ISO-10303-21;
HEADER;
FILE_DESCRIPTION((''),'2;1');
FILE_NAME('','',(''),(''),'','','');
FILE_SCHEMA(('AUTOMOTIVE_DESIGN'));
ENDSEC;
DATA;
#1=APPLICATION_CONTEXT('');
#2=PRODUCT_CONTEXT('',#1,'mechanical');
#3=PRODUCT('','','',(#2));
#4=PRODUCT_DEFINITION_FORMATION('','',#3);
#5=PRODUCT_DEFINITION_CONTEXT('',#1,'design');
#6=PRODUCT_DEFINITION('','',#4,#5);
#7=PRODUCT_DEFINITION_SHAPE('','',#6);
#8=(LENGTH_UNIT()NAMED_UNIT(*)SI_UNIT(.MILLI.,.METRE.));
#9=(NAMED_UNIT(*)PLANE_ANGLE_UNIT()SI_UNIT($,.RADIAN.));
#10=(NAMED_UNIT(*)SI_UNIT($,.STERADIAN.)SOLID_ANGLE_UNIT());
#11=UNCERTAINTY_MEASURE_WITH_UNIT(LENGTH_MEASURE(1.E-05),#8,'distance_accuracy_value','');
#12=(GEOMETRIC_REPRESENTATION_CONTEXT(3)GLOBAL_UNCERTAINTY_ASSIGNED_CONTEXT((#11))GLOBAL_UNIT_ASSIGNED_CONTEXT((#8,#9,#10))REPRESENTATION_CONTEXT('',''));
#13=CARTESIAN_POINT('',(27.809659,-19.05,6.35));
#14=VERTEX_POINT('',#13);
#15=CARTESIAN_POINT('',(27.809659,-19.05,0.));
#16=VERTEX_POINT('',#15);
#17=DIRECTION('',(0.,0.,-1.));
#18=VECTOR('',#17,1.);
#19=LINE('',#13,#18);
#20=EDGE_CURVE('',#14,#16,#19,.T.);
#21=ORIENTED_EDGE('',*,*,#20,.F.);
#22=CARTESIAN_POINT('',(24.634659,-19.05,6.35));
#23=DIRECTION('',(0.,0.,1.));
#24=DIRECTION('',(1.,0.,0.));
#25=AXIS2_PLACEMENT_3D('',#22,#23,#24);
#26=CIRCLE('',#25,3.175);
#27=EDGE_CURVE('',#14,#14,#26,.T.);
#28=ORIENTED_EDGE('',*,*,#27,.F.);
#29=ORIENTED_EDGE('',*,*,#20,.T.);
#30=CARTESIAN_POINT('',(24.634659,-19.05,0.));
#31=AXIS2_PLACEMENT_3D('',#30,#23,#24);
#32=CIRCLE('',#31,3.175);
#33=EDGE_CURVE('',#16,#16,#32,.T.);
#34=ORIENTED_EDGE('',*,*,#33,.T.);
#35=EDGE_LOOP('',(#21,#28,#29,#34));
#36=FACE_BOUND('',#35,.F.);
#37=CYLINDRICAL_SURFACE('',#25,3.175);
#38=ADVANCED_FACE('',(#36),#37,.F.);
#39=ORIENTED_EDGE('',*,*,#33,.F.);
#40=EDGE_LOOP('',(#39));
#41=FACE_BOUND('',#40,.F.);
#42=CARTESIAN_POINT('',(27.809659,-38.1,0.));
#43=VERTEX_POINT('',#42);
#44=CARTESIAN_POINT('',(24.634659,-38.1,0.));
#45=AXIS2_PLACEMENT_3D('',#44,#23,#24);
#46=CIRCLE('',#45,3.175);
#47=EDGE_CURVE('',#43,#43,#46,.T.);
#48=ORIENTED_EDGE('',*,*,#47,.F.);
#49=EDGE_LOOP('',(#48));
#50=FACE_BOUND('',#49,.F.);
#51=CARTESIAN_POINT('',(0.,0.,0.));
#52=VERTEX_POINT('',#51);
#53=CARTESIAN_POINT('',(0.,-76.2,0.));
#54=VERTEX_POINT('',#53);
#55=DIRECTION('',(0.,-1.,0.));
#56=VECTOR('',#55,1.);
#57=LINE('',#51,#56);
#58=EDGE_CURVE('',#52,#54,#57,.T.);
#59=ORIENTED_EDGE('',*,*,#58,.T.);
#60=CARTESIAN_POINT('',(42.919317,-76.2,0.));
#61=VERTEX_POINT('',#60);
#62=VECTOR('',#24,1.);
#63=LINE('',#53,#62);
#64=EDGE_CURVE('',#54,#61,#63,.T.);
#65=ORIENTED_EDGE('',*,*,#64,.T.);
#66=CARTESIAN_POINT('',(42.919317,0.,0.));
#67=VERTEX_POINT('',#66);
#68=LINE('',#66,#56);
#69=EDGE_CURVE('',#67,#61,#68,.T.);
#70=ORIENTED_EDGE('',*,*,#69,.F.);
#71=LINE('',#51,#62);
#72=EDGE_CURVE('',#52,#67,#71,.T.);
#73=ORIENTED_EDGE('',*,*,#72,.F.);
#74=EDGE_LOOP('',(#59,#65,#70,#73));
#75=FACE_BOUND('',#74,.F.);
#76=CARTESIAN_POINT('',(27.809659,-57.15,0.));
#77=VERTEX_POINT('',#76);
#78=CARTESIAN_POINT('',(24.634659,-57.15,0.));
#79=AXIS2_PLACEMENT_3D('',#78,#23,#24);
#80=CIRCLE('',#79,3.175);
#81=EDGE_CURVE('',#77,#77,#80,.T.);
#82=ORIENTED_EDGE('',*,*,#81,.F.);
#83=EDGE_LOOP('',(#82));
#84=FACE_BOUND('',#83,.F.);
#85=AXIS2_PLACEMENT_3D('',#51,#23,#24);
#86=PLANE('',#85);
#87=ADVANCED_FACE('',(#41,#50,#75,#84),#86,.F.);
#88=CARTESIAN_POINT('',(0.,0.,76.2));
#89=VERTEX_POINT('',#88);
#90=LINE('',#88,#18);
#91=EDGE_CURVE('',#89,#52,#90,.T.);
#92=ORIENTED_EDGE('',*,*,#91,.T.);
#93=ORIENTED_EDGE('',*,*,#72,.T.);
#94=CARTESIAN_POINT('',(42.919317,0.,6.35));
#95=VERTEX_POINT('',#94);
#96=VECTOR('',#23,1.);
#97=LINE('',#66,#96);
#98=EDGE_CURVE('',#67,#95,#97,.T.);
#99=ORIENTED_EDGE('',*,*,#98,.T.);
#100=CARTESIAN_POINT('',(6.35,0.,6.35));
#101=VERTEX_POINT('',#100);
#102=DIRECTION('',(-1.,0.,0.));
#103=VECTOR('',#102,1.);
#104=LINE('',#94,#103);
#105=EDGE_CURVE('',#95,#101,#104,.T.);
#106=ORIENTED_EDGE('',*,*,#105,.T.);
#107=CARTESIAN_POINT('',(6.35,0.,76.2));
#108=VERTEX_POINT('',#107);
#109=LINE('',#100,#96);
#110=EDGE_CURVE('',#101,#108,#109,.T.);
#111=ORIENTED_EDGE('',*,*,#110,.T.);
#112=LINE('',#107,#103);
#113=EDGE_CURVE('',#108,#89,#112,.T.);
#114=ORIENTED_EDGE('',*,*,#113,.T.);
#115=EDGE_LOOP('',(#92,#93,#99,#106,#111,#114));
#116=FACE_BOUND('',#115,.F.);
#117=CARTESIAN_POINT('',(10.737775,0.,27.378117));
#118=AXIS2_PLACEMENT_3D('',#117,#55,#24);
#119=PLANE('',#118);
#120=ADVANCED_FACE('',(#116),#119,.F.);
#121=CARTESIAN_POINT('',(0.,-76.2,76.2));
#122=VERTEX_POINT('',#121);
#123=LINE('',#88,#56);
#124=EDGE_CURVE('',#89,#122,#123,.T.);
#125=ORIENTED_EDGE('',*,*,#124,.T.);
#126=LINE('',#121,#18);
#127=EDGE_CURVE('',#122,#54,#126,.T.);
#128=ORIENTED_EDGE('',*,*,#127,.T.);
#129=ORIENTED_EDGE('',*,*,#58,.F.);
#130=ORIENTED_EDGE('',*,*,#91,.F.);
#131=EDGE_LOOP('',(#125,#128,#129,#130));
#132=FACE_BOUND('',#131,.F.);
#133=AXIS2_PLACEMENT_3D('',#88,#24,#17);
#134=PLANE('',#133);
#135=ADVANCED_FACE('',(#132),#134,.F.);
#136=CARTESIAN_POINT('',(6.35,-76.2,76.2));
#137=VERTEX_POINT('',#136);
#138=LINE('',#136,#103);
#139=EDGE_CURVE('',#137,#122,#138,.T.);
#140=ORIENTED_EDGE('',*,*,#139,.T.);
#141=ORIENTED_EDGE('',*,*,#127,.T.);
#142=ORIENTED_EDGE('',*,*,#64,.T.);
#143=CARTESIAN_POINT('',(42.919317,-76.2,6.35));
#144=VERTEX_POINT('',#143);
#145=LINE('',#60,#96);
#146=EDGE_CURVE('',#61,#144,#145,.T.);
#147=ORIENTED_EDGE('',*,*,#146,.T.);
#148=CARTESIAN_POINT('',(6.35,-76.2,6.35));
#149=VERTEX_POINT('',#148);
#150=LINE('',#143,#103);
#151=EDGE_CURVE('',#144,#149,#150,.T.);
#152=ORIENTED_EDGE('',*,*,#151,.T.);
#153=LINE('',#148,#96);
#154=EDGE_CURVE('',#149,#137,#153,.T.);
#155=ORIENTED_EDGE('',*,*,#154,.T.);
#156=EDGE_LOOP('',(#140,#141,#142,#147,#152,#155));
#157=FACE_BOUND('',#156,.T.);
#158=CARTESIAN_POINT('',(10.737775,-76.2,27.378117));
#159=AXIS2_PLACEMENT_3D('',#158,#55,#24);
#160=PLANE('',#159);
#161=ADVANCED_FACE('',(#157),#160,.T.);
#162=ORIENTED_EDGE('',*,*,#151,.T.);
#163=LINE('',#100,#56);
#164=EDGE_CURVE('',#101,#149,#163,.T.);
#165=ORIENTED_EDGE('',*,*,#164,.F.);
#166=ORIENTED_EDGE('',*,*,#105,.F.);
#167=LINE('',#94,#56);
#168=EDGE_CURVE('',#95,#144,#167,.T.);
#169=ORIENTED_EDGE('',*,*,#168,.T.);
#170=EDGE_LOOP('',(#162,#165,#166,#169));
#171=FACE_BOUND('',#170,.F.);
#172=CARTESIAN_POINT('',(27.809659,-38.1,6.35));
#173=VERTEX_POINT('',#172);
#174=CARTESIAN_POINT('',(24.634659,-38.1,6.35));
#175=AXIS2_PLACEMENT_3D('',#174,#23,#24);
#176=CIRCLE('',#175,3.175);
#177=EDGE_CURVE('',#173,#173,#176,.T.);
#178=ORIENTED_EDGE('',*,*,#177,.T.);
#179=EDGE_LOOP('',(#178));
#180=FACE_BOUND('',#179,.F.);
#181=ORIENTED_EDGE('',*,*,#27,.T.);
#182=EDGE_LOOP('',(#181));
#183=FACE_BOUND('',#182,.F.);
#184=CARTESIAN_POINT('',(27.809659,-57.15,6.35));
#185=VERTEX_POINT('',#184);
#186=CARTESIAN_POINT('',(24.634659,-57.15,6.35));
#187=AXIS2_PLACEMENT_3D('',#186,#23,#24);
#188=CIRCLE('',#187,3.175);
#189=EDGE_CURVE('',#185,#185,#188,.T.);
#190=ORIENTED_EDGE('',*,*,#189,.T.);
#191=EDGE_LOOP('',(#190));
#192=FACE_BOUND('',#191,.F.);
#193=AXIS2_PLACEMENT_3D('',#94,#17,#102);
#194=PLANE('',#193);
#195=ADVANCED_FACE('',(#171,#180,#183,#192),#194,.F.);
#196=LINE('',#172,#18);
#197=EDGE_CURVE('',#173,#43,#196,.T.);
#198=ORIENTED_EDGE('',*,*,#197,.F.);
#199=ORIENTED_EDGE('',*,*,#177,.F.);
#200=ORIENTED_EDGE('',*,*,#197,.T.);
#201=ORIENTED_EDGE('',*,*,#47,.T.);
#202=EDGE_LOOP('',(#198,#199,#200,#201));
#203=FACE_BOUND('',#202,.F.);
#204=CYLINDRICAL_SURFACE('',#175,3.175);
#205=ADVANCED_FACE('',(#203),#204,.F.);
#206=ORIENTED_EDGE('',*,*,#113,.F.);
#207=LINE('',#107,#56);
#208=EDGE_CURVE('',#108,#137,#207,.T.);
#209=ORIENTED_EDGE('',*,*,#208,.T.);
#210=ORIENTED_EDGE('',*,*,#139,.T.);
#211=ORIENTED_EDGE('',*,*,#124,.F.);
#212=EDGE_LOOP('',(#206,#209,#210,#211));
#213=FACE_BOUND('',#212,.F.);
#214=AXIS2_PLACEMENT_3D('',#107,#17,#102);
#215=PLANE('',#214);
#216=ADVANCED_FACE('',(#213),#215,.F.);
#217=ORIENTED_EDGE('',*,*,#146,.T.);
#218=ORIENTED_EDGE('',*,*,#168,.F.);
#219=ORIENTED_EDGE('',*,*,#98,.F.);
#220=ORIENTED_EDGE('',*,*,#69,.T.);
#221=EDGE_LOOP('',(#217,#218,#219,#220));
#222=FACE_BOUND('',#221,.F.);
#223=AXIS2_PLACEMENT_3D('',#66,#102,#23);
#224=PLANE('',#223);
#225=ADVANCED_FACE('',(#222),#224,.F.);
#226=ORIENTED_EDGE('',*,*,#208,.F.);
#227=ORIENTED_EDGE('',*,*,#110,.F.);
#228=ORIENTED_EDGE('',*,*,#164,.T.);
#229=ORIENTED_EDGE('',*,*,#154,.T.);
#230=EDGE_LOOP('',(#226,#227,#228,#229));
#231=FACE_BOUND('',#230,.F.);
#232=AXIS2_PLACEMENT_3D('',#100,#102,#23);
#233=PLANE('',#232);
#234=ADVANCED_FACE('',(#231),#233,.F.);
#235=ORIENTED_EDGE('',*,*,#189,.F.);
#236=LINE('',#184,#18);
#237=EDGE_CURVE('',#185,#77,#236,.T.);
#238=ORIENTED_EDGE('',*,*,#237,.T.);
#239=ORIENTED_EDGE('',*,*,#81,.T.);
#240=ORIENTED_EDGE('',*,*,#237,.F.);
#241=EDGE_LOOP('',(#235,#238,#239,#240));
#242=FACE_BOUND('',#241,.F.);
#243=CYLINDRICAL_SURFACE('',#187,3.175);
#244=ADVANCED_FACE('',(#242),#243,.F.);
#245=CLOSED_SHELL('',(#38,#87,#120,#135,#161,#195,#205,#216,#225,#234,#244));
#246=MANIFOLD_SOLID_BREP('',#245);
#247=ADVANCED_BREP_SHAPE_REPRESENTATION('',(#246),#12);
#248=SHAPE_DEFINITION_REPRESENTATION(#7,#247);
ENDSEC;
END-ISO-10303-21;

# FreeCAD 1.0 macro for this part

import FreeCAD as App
import Part
import Sketcher

V = App.Vector
Q = App.Units.Quantity

doc = App.newDocument("Part")
body = doc.addObject("PartDesign::Body", "Body")

sketch1 = body.newObject("Sketcher::SketchObject", "Sketch")
sketch1.AttachmentSupport = (doc.getObject("XZ_Plane"), [""])
sketch1.MapMode = "FlatFace"
sketch1.addGeometry([
    Part.LineSegment(V(0, 76, 0), V(0, 0, 0)),
    Part.LineSegment(V(0, 0, 0), V(43, 0, 0)),
    Part.LineSegment(V(43, 0, 0), V(43, 6, 0)),
    Part.LineSegment(V(43, 6, 0), V(6, 6, 0)),
    Part.LineSegment(V(6, 6, 0), V(6, 76, 0)),
    Part.LineSegment(V(6, 76, 0), V(0, 76, 0)),
], False)
sketch1.addConstraint([
    Sketcher.Constraint("Coincident", 0, 2, 1, 1),
    Sketcher.Constraint("Coincident", 1, 2, 2, 1),
    Sketcher.Constraint("Coincident", 2, 2, 3, 1),
    Sketcher.Constraint("Coincident", 3, 2, 4, 1),
    Sketcher.Constraint("Coincident", 4, 2, 5, 1),
    Sketcher.Constraint("Coincident", 5, 2, 0, 1),
    Sketcher.Constraint("Vertical", 0),
    Sketcher.Constraint("Horizontal", 1),
    Sketcher.Constraint("Vertical", 2),
    Sketcher.Constraint("Horizontal", 3),
    Sketcher.Constraint("Vertical", 4),
    Sketcher.Constraint("Horizontal", 5),
    Sketcher.Constraint("Coincident", 0, 2, -1, 1),
    Sketcher.Constraint("Equal", 5, 2),
    Sketcher.Constraint("DistanceY", 0, 2, 0, 1, Q("3 in")),
    Sketcher.Constraint("DistanceX", 5, 2, 5, 1, Q("0.25 in")),
    Sketcher.Constraint("DistanceX", 1, 1, 1, 2, 42.919317),
])
pad1 = body.newObject("PartDesign::Pad", "Pad")
pad1.Profile = sketch1
pad1.Length = Q("3 in")

sketch2 = body.newObject("Sketcher::SketchObject", "Sketch001")
sketch2.AttachmentSupport = (doc.getObject("XY_Plane"), [""])
sketch2.MapMode = "FlatFace"
sketch2.AttachmentOffset = App.Placement(V(0, 0, 0.25 * 25.4), App.Rotation())
sketch2.addGeometry([
    Part.Circle(V(24.6, -19.1, 0), V(0, 0, 1), 3.2),
    Part.Circle(V(24.6, -38.1, 0), V(0, 0, 1), 3.2),
    Part.Circle(V(24.6, -57.1, 0), V(0, 0, 1), 3.2),
], False)
sketch2.addConstraint([
    Sketcher.Constraint("Equal", 0, 1),
    Sketcher.Constraint("Equal", 1, 2),
    Sketcher.Constraint("Vertical", 0, 3, 1, 3),
    Sketcher.Constraint("Vertical", 1, 3, 2, 3),
    Sketcher.Constraint("Diameter", 0, Q("0.25 in")),
    Sketcher.Constraint("DistanceY", 1, 3, -1, 1, Q("1.5 in")),
    Sketcher.Constraint("DistanceY", 2, 3, 0, 3, Q("1.5 in")),
    Sketcher.Constraint("DistanceY", 0, 3, -1, 1, Q("0.75 in")),
    Sketcher.Constraint("DistanceX", -1, 1, 0, 3, 24.634659),
])
pocket1 = body.newObject("PartDesign::Pocket", "Pocket")
pocket1.Profile = sketch2
pocket1.Type = "ThroughAll"

doc.recompute()
